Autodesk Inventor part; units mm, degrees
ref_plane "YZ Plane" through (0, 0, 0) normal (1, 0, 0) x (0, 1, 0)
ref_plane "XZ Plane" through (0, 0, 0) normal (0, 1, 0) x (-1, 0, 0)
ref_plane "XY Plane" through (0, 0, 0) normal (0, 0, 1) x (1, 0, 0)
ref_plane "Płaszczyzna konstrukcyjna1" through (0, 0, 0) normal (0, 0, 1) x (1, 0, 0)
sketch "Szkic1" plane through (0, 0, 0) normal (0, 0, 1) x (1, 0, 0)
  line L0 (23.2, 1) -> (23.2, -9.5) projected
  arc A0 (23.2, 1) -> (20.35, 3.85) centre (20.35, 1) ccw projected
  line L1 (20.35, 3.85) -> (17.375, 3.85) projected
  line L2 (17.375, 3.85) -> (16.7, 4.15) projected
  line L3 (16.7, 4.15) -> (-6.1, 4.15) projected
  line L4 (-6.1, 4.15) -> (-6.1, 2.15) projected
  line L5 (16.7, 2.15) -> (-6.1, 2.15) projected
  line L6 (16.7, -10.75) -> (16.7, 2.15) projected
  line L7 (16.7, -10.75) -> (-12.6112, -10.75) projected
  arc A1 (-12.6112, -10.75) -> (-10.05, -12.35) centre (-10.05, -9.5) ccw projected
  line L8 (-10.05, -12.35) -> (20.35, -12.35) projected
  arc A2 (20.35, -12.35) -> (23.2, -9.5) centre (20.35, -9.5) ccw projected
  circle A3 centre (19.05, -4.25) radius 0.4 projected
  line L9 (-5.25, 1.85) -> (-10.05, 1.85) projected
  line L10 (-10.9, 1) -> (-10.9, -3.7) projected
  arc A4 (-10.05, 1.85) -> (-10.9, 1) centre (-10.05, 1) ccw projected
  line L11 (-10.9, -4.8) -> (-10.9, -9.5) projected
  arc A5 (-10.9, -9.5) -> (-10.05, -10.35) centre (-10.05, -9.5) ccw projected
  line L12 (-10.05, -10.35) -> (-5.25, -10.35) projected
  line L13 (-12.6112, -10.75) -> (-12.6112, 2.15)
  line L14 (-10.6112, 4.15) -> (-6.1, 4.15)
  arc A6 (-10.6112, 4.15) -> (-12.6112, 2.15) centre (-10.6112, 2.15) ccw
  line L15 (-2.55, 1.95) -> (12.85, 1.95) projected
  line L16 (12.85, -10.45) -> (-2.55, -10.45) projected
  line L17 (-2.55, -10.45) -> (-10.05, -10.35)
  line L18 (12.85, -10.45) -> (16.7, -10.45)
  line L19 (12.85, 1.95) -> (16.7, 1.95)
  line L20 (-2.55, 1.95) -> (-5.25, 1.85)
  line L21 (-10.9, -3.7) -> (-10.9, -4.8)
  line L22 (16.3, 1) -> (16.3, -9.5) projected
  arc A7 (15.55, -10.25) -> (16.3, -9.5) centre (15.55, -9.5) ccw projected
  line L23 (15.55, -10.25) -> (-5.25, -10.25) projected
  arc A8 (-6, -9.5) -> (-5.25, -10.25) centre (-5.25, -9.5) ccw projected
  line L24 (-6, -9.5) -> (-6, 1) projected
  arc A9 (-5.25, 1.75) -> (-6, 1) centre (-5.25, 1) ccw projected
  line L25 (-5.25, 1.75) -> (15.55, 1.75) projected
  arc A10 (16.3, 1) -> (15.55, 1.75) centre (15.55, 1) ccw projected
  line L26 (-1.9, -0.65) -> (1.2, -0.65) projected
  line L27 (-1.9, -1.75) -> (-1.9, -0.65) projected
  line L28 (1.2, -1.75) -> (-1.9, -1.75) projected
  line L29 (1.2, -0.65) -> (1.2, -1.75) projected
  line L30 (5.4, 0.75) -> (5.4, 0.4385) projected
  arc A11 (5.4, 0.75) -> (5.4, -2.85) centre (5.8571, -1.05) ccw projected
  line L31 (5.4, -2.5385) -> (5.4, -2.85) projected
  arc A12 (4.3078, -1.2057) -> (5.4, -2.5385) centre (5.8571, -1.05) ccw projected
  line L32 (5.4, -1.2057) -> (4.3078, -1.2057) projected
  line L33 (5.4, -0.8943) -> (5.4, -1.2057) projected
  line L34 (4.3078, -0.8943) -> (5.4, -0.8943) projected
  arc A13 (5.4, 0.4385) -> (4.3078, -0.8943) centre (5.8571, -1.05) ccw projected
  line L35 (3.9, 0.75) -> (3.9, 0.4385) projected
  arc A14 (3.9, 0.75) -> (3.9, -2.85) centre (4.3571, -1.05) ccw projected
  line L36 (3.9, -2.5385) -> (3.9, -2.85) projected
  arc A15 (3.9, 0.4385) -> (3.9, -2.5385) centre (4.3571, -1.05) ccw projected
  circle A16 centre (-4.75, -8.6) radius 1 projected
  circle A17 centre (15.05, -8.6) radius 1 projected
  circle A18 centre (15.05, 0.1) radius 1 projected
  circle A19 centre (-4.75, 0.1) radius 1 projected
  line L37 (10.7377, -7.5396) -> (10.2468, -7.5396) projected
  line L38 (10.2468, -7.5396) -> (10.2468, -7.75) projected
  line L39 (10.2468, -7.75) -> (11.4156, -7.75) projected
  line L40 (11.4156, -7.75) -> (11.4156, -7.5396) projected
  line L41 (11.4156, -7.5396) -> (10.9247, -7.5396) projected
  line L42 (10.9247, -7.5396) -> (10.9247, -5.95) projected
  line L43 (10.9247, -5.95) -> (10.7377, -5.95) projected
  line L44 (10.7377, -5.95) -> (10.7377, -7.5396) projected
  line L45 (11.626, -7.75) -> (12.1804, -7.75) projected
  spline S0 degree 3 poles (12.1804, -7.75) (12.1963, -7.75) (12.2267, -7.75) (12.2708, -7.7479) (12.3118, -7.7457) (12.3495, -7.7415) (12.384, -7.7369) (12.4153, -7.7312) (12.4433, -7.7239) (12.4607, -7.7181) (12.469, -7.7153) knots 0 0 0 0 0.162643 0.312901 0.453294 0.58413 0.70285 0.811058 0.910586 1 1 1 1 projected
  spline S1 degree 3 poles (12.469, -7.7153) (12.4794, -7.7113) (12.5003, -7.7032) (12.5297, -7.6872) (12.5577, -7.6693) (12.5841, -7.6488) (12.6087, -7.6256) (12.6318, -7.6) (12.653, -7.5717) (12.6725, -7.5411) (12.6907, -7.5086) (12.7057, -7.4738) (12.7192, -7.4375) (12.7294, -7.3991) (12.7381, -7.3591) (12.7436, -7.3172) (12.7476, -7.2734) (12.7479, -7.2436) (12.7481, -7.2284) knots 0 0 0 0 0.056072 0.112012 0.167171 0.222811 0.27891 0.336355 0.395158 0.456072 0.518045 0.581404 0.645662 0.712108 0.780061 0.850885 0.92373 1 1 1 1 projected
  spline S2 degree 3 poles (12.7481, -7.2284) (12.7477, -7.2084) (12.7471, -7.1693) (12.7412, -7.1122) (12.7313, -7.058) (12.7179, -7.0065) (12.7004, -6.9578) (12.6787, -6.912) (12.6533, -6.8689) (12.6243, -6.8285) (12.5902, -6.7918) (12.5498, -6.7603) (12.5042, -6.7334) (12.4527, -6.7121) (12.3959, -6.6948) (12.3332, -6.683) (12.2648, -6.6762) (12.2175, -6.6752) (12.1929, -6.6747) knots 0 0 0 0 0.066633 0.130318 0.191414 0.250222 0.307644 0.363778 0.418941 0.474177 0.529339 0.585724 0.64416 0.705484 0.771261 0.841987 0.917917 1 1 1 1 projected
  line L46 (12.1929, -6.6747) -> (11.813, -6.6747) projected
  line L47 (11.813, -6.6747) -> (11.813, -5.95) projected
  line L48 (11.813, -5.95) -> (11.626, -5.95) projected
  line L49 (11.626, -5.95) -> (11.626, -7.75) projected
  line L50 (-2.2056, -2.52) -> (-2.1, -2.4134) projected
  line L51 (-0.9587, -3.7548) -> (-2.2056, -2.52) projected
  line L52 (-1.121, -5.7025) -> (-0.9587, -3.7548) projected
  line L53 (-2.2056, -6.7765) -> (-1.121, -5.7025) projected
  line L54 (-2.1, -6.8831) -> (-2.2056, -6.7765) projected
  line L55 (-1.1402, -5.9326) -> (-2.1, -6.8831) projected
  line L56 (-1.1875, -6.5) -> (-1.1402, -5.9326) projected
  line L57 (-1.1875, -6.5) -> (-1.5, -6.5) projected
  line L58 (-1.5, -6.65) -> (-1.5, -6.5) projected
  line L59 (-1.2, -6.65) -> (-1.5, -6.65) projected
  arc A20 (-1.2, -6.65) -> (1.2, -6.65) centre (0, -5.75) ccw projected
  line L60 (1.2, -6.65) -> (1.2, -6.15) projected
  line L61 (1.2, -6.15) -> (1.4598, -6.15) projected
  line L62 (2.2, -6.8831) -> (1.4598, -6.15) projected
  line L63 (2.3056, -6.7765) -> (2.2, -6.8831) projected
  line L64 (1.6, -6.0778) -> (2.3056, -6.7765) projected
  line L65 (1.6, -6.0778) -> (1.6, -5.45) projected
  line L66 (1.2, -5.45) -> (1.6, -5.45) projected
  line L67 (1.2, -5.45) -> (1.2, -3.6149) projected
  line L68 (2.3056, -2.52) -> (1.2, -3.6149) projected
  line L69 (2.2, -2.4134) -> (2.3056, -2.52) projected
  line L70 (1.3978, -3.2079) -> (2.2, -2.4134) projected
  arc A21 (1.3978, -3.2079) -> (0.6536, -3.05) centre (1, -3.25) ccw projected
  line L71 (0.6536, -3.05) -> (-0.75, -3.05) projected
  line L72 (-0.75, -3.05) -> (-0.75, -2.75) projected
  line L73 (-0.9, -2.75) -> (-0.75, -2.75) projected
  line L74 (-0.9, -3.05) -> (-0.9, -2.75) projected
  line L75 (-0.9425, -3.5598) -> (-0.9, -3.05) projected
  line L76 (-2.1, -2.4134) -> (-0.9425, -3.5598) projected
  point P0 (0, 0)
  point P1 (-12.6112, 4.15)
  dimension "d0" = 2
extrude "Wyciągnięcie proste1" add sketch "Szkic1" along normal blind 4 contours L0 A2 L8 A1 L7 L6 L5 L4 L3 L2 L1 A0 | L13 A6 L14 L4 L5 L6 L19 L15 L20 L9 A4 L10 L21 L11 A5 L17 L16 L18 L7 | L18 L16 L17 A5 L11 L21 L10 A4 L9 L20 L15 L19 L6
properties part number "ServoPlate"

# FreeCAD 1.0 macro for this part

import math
import FreeCAD as App
import Part
import Sketcher
from FreeCAD import Vector
Q = App.Units.Quantity

doc = App.newDocument("Part")
params = doc.addObject("Spreadsheet::Sheet", "Params")
for row, (alias, value) in enumerate([
    ("sketch1_radius", "2 mm"),
    ("sketch1_diameter", "0.8 mm"),
    ("sketch1_radius2", "2.85 mm"),
    ("sketch1_radius3", "0.75 mm"),
    ("sketch1_width", "30.4 mm"),
    ("pad1_length", "4 mm"),
], start=1):
    params.set(f"A{row}", alias)
    params.set(f"B{row}", "=" + value)
    params.setAlias(f"B{row}", alias)

body = doc.addObject("PartDesign::Body", "Body")

# Sketch on XY plane
sketch1 = body.newObject("Sketcher::SketchObject", "Sketch")
sketch1.AttachmentSupport = (doc.getObject("XY_Plane"), [""])
sketch1.MapMode = "FlatFace"
sketch1.addGeometry(Part.LineSegment(Vector(23.2, -9.5, 0), Vector(23.2, 1, 0)), False)
sketch1.addGeometry(Part.ArcOfCircle(Part.Circle(Vector(20.35, 1, 0), Vector(0, 0, 1), 2.85), math.radians(0), math.radians(90)), False)
sketch1.addGeometry(Part.LineSegment(Vector(20.35, 3.85, 0), Vector(17.375, 3.85, 0)), False)
sketch1.addGeometry(Part.LineSegment(Vector(17.375, 3.85, 0), Vector(16.7, 4.15, 0)), False)
sketch1.addGeometry(Part.LineSegment(Vector(16.7, 4.15, 0), Vector(-10.6112, 4.15, 0)), False)
sketch1.addGeometry(Part.ArcOfCircle(Part.Circle(Vector(-10.6112, 2.15, 0), Vector(0, 0, 1), 2), math.radians(90), math.radians(180)), False)
sketch1.addGeometry(Part.LineSegment(Vector(-12.6112, 2.15, 0), Vector(-12.6112, -10.75, 0)), False)
sketch1.addGeometry(Part.ArcOfCircle(Part.Circle(Vector(-10.05, -9.5, 0), Vector(0, 0, 1), 2.849955), math.radians(-153.985196), math.radians(-90)), False)
sketch1.addGeometry(Part.LineSegment(Vector(-10.05, -12.35, 0), Vector(20.35, -12.35, 0)), False)
sketch1.addGeometry(Part.ArcOfCircle(Part.Circle(Vector(20.35, -9.5, 0), Vector(0, 0, 1), 2.85), math.radians(-90), math.radians(0)), False)
sketch1.addGeometry(Part.Circle(Vector(19.05, -4.25, 0), Vector(0, 0, 1), 0.4), False)
sketch1.addGeometry(Part.ArcOfCircle(Part.Circle(Vector(-5.25, -9.5, 0), Vector(0, 0, 1), 0.75), math.radians(180), math.radians(270)), False)
sketch1.addGeometry(Part.LineSegment(Vector(-6, -9.5, 0), Vector(-6, 1, 0)), False)
sketch1.addGeometry(Part.ArcOfCircle(Part.Circle(Vector(-5.25, 1, 0), Vector(0, 0, 1), 0.75), math.radians(90), math.radians(180)), False)
sketch1.addGeometry(Part.LineSegment(Vector(-5.25, 1.75, 0), Vector(15.55, 1.75, 0)), False)
sketch1.addGeometry(Part.ArcOfCircle(Part.Circle(Vector(15.55, 1, 0), Vector(0, 0, 1), 0.75), math.radians(0), math.radians(90)), False)
sketch1.addGeometry(Part.LineSegment(Vector(16.3, 1, 0), Vector(16.3, -9.5, 0)), False)
sketch1.addGeometry(Part.ArcOfCircle(Part.Circle(Vector(15.55, -9.5, 0), Vector(0, 0, 1), 0.75), math.radians(-90), math.radians(0)), False)
sketch1.addGeometry(Part.LineSegment(Vector(15.55, -10.25, 0), Vector(-5.25, -10.25, 0)), False)
sketch1.addConstraint(Sketcher.Constraint("Tangent", 0, 2, 1, 1))
sketch1.addConstraint(Sketcher.Constraint("Tangent", 1, 2, 2, 1))
sketch1.addConstraint(Sketcher.Constraint("Coincident", 2, 2, 3, 1))
sketch1.addConstraint(Sketcher.Constraint("Coincident", 3, 2, 4, 1))
sketch1.addConstraint(Sketcher.Constraint("Tangent", 4, 2, 5, 1))
sketch1.addConstraint(Sketcher.Constraint("Tangent", 5, 2, 6, 1))
sketch1.addConstraint(Sketcher.Constraint("Coincident", 6, 2, 7, 1))
sketch1.addConstraint(Sketcher.Constraint("Tangent", 7, 2, 8, 1))
sketch1.addConstraint(Sketcher.Constraint("Tangent", 8, 2, 9, 1))
sketch1.addConstraint(Sketcher.Constraint("Tangent", 9, 2, 0, 1))
sketch1.addConstraint(Sketcher.Constraint("Tangent", 11, 1, 12, 1))
sketch1.addConstraint(Sketcher.Constraint("Tangent", 12, 2, 13, 2))
sketch1.addConstraint(Sketcher.Constraint("Tangent", 13, 1, 14, 1))
sketch1.addConstraint(Sketcher.Constraint("Tangent", 14, 2, 15, 2))
sketch1.addConstraint(Sketcher.Constraint("Tangent", 15, 1, 16, 1))
sketch1.addConstraint(Sketcher.Constraint("Tangent", 16, 2, 17, 2))
sketch1.addConstraint(Sketcher.Constraint("Tangent", 17, 1, 18, 1))
sketch1.addConstraint(Sketcher.Constraint("Tangent", 18, 2, 11, 2))
sketch1.addConstraint(Sketcher.Constraint("Vertical", 0))
sketch1.addConstraint(Sketcher.Constraint("Horizontal", 2))
sketch1.addConstraint(Sketcher.Constraint("Horizontal", 4))
sketch1.addConstraint(Sketcher.Constraint("Vertical", 6))
sketch1.addConstraint(Sketcher.Constraint("Horizontal", 8))
sketch1.addConstraint(Sketcher.Constraint("Vertical", 12))
sketch1.addConstraint(Sketcher.Constraint("Horizontal", 14))
sketch1.addConstraint(Sketcher.Constraint("Vertical", 16))
sketch1.addConstraint(Sketcher.Constraint("Horizontal", 18))
sketch1.addConstraint(Sketcher.Constraint("Equal", 1, 7))
sketch1.addConstraint(Sketcher.Constraint("Equal", 7, 9))
sketch1.addConstraint(Sketcher.Constraint("Equal", 11, 13))
sketch1.addConstraint(Sketcher.Constraint("Equal", 13, 15))
sketch1.addConstraint(Sketcher.Constraint("Equal", 15, 17))
sketch1.addConstraint(Sketcher.Constraint("Horizontal", 9, 3, 11, 3))
sketch1.addConstraint(Sketcher.Constraint("Horizontal", 1, 3, 13, 3))
sketch1.addConstraint(Sketcher.Constraint("Radius", 5, Q("2 mm")))
sketch1.addConstraint(Sketcher.Constraint("Diameter", 10, Q("0.8 mm")))
sketch1.addConstraint(Sketcher.Constraint("Radius", 1, Q("2.85 mm")))
sketch1.addConstraint(Sketcher.Constraint("Radius", 11, Q("0.75 mm")))
sketch1.addConstraint(Sketcher.Constraint("DistanceX", 8, 1, 8, 2, Q("30.4 mm")))
sketch1.addConstraint(Sketcher.Constraint("DistanceX", 14, 1, 14, 2, Q("20.8 mm")))
sketch1.addConstraint(Sketcher.Constraint("DistanceY", 0, 1, 0, 2, Q("10.5 mm")))
sketch1.addConstraint(Sketcher.Constraint("DistanceY", 6, 2, 6, 1, Q("12.9 mm")))
sketch1.addConstraint(Sketcher.Constraint("DistanceY", -1, 1, 1, 3, Q("1 mm")))
sketch1.addConstraint(Sketcher.Constraint("DistanceX", 11, 1, -1, 1, Q("6 mm")))
sketch1.addConstraint(Sketcher.Constraint("DistanceY", 17, 1, 10, 3, Q("6 mm")))
sketch1.addConstraint(Sketcher.Constraint("DistanceX", -1, 1, 0, 2, Q("23.2 mm")))
sketch1.addConstraint(Sketcher.Constraint("DistanceX", -1, 1, 3, 2, Q("16.7 mm")))
sketch1.addConstraint(Sketcher.Constraint("DistanceX", 10, 3, 1, 3, Q("1.3 mm")))
sketch1.addConstraint(Sketcher.Constraint("DistanceY", 10, 3, 5, 3, Q("6.4 mm")))
sketch1.addConstraint(Sketcher.Constraint("DistanceX", 2, 2, 2, 1, Q("2.975 mm")))
sketch1.setExpression("Constraints[34]", "Params.sketch1_radius")
sketch1.setExpression("Constraints[35]", "Params.sketch1_diameter")
sketch1.setExpression("Constraints[36]", "Params.sketch1_radius2")
sketch1.setExpression("Constraints[37]", "Params.sketch1_radius3")
sketch1.setExpression("Constraints[38]", "Params.sketch1_width")
pad1 = body.newObject("PartDesign::Pad", "Pad")
pad1.Profile = sketch1
pad1.setExpression("Length", "Params.pad1_length")

doc.recompute()
